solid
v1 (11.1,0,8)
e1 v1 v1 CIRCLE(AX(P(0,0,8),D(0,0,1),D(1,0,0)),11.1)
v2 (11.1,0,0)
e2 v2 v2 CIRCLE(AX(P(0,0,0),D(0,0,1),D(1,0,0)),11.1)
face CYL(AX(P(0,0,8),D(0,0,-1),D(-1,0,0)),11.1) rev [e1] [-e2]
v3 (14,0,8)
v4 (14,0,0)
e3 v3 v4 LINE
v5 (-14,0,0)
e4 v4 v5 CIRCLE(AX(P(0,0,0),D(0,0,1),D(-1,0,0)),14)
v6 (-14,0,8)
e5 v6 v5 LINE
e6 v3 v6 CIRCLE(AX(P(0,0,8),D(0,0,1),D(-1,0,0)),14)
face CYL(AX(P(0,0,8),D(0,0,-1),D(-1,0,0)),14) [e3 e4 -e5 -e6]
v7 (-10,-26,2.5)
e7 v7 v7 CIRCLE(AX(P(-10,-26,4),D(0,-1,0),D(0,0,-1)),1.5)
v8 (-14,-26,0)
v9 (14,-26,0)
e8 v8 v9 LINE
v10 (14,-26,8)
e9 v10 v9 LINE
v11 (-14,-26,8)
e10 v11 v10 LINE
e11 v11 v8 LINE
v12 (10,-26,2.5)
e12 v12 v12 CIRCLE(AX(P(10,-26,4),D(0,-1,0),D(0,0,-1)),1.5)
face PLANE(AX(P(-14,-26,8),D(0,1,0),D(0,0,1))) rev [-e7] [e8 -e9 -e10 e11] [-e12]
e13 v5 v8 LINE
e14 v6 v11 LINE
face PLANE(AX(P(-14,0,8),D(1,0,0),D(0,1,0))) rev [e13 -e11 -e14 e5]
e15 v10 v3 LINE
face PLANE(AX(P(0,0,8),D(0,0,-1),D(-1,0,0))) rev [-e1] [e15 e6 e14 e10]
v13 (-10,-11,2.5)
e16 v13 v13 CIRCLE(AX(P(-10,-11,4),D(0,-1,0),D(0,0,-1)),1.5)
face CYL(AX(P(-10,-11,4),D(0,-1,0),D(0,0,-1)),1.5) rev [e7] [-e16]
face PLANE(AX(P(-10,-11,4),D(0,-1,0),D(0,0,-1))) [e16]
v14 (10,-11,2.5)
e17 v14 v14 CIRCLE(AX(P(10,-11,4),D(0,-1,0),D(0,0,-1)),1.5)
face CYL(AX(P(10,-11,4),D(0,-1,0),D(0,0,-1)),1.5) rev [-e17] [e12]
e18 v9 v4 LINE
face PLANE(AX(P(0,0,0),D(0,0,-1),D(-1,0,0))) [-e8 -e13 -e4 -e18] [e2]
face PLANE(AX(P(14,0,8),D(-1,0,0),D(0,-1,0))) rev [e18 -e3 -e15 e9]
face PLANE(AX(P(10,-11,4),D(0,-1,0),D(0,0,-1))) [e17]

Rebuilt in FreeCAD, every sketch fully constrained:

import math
import FreeCAD as App
import Part
import Sketcher

doc = App.newDocument("Part")
body = doc.addObject("PartDesign::Body", "Body")

sketch1 = body.newObject("Sketcher::SketchObject", "Sketch")
sketch1.AttachmentSupport = (doc.getObject("XY_Plane"), [""])
sketch1.MapMode = "FlatFace"
sketch1.addGeometry([
    Part.LineSegment(App.Vector(-14, 0, 0), App.Vector(-14, -26, 0)),
    Part.LineSegment(App.Vector(-14, -26, 0), App.Vector(14, -26, 0)),
    Part.LineSegment(App.Vector(14, -26, 0), App.Vector(14, 0, 0)),
    Part.ArcOfCircle(Part.Circle(App.Vector(0, 0, 0), App.Vector(0, 0, 1), 14), math.radians(0), math.radians(180)),
    Part.Circle(App.Vector(0, 0, 0), App.Vector(0, 0, 1), 11.1),
], False)
sketch1.addConstraint([
    Sketcher.Constraint("Coincident", 0, 2, 1, 1),
    Sketcher.Constraint("Coincident", 1, 2, 2, 1),
    Sketcher.Constraint("Tangent", 2, 2, 3, 1),
    Sketcher.Constraint("Tangent", 3, 2, 0, 1),
    Sketcher.Constraint("Vertical", 0),
    Sketcher.Constraint("Horizontal", 1),
    Sketcher.Constraint("Vertical", 2),
    Sketcher.Constraint("Coincident", 3, 3, -1, 1),
    Sketcher.Constraint("Coincident", 4, 3, -1, 1),
    Sketcher.Constraint("Radius", 3, 14.0),
    Sketcher.Constraint("Diameter", 4, 22.2),
    Sketcher.Constraint("DistanceY", 0, 2, 0, 1, 26.0),
])
pad1 = body.newObject("PartDesign::Pad", "Pad")
pad1.Profile = sketch1
pad1.Length = 8

sketch2 = body.newObject("Sketcher::SketchObject", "Sketch001")
sketch2.AttachmentSupport = (doc.getObject("XZ_Plane"), [""])
sketch2.MapMode = "FlatFace"
sketch2.AttachmentOffset = App.Placement(App.Vector(0, 0, 26), App.Rotation())
sketch2.addGeometry([
    Part.Circle(App.Vector(-10, 4, 0), App.Vector(0, 0, 1), 1.5),
    Part.Circle(App.Vector(10, 4, 0), App.Vector(0, 0, 1), 1.5),
], False)
sketch2.addConstraint([
    Sketcher.Constraint("Equal", 0, 1),
    Sketcher.Constraint("Symmetric", 0, 3, 1, 3, -2),
    Sketcher.Constraint("Diameter", 0, 3.0),
    Sketcher.Constraint("DistanceX", 0, 3, -1, 1, 10.0),
    Sketcher.Constraint("DistanceY", -1, 1, 0, 3, 4.0),
])
pocket1 = body.newObject("PartDesign::Pocket", "Pocket")
pocket1.Profile = sketch2
pocket1.Length = 15

doc.recompute()
